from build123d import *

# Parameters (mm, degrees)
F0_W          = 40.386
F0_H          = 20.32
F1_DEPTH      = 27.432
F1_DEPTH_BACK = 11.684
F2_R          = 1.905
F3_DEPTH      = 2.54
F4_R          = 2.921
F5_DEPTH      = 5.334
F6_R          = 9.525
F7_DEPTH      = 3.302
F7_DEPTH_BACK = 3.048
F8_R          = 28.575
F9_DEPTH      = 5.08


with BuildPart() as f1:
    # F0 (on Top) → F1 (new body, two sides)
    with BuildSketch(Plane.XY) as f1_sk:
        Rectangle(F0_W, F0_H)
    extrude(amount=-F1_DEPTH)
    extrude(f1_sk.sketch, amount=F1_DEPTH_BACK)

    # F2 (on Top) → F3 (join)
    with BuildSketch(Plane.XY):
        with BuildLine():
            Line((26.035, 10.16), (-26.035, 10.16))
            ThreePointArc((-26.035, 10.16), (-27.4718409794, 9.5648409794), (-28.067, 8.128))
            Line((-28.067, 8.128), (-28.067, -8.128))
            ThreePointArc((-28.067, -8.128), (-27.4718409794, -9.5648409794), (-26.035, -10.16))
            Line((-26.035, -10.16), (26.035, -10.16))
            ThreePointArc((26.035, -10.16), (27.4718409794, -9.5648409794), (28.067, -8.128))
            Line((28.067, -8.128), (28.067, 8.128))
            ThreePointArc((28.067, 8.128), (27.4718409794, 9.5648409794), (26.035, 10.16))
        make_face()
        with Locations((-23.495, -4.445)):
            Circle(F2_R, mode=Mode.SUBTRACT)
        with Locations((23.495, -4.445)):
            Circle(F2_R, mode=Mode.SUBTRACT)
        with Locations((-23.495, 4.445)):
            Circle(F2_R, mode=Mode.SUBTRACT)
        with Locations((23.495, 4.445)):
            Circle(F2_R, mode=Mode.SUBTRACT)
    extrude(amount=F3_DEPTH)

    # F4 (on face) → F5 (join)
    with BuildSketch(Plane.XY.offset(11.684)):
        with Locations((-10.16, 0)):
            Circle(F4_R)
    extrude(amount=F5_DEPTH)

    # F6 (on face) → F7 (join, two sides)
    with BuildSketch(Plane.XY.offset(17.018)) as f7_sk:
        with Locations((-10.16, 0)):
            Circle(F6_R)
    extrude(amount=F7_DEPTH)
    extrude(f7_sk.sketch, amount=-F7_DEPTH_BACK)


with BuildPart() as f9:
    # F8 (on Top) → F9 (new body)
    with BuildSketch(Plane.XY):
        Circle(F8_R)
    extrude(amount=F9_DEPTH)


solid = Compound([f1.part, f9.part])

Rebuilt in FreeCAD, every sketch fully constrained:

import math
import FreeCAD as App
import Part
import Sketcher
from FreeCAD import Vector
Q = App.Units.Quantity


def add_polygon(sketch, points):
    """Adds a closed chain of lines whose ends are joined by coincident constraints."""
    first, n = sketch.GeometryCount, len(points)
    for a, b in zip(points, points[1:] + points[:1]):
        sketch.addGeometry(Part.LineSegment(App.Vector(*a, 0), App.Vector(*b, 0)), False)
    for i in range(n):
        sketch.addConstraint(Sketcher.Constraint("Coincident", first + i, 2, first + (i + 1) % n, 1))

doc = App.newDocument("Part")
params = doc.addObject("Spreadsheet::Sheet", "Params")
for row, (alias, value) in enumerate([
    ("sketch1_height", "0.8 in"),
    ("sketch1_width", "1.59 in"),
    ("pad1_length", "1.08 in"),
    ("pad1_length2", "0.46 in"),
    ("sketch2_diameter", "0.15 in"),
    ("sketch2_radius", "0.08 in"),
    ("sketch2_width", "2.05 in"),
    ("sketch2_height", "0.64 in"),
    ("pad2_length", "0.1 in"),
    ("sketch3_diameter", "0.23 in"),
    ("pad3_length", "0.21 in"),
    ("sketch4_diameter", "0.75 in"),
    ("pad4_length", "0.13 in"),
    ("pad4_length2", "0.12 in"),
    ("sketch5_diameter", "2.25 in"),
    ("pad5_length", "0.2 in"),
], start=1):
    params.set(f"A{row}", alias)
    params.set(f"B{row}", "=" + value)
    params.setAlias(f"B{row}", alias)

body = doc.addObject("PartDesign::Body", "Body")

# Sketch on XY plane
sketch1 = doc.addObject("Sketcher::SketchObject", "Sketch")
body.addObject(sketch1)
sketch1.AttachmentSupport = (doc.XY_Plane, [""])
sketch1.MapMode = "FlatFace"
add_polygon(sketch1, [(-20.193, 10.16), (-20.193, -10.16), (20.193, -10.16), (20.193, 10.16)])  # lines 0-3
sketch1.addConstraint([
    Sketcher.Constraint("Vertical", 0),
    Sketcher.Constraint("Horizontal", 1),
    Sketcher.Constraint("Vertical", 2),
    Sketcher.Constraint("Horizontal", 3),
    Sketcher.Constraint("Symmetric", 0, 2, 2, 2, -1, 1),
    Sketcher.Constraint("DistanceY", 0, 2, 0, 1, Q("0.8 in")),
    Sketcher.Constraint("DistanceX", 1, 1, 1, 2, Q("1.59 in")),
])
sketch1.setExpression("Constraints[9]", "Params.sketch1_height")
sketch1.setExpression("Constraints[10]", "Params.sketch1_width")
pad1 = doc.addObject("PartDesign::Pad", "Pad")
body.addObject(pad1)
pad1.Profile = sketch1
pad1.Type = "TwoLengths"
pad1.setExpression("Length", "Params.pad1_length")
pad1.setExpression("Length2", "Params.pad1_length2")
pad1.Reversed = True

# Sketch on XY plane
sketch2 = doc.addObject("Sketcher::SketchObject", "Sketch001")
body.addObject(sketch2)
sketch2.AttachmentSupport = (doc.XY_Plane, [""])
sketch2.MapMode = "FlatFace"
sketch2.addGeometry([
    Part.LineSegment(Vector(26.035, 10.16, 0), Vector(-26.035, 10.16, 0)),  # 0
    Part.ArcOfCircle(Part.Circle(Vector(-26.035, 8.128, 0), Vector(0, 0, 1), 2.032), math.radians(90), math.radians(180)),  # 1
    Part.LineSegment(Vector(-28.067, 8.128, 0), Vector(-28.067, -8.128, 0)),  # 2
    Part.ArcOfCircle(Part.Circle(Vector(-26.035, -8.128, 0), Vector(0, 0, 1), 2.032), math.radians(180), math.radians(270)),  # 3
    Part.LineSegment(Vector(-26.035, -10.16, 0), Vector(26.035, -10.16, 0)),  # 4
    Part.ArcOfCircle(Part.Circle(Vector(26.035, -8.128, 0), Vector(0, 0, 1), 2.032), math.radians(-90), math.radians(0)),  # 5
    Part.LineSegment(Vector(28.067, -8.128, 0), Vector(28.067, 8.128, 0)),  # 6
    Part.ArcOfCircle(Part.Circle(Vector(26.035, 8.128, 0), Vector(0, 0, 1), 2.032), math.radians(0), math.radians(90)),  # 7
    Part.Circle(Vector(-23.495, -4.445, 0), Vector(0, 0, 1), 1.905),  # 8
    Part.Circle(Vector(23.495, -4.445, 0), Vector(0, 0, 1), 1.905),  # 9
    Part.Circle(Vector(-23.495, 4.445, 0), Vector(0, 0, 1), 1.905),  # 10
    Part.Circle(Vector(23.495, 4.445, 0), Vector(0, 0, 1), 1.905),  # 11
], False)
sketch2.addConstraint([
    Sketcher.Constraint("Tangent", 0, 2, 1, 1),
    Sketcher.Constraint("Tangent", 1, 2, 2, 1),
    Sketcher.Constraint("Tangent", 2, 2, 3, 1),
    Sketcher.Constraint("Tangent", 3, 2, 4, 1),
    Sketcher.Constraint("Tangent", 4, 2, 5, 1),
    Sketcher.Constraint("Tangent", 5, 2, 6, 1),
    Sketcher.Constraint("Tangent", 6, 2, 7, 1),
    Sketcher.Constraint("Tangent", 7, 2, 0, 1),
    Sketcher.Constraint("Horizontal", 0),
    Sketcher.Constraint("Vertical", 2),
    Sketcher.Constraint("Horizontal", 4),
    Sketcher.Constraint("Vertical", 6),
    Sketcher.Constraint("Equal", 1, 3),
    Sketcher.Constraint("Equal", 3, 5),
    Sketcher.Constraint("Equal", 5, 7),
    Sketcher.Constraint("Equal", 8, 9),
    Sketcher.Constraint("Equal", 9, 10),
    Sketcher.Constraint("Equal", 10, 11),
    Sketcher.Constraint("Symmetric", 1, 3, 5, 3, -1, 1),
    Sketcher.Constraint("Symmetric", 9, 3, 10, 3, -1, 1),
    Sketcher.Constraint("Symmetric", 8, 3, 11, 3, -1, 1),
    Sketcher.Constraint("Symmetric", 8, 3, 9, 3, -2),
    Sketcher.Constraint("Diameter", 8, Q("0.15 in")),
    Sketcher.Constraint("Radius", 1, Q("0.08 in")),
    Sketcher.Constraint("DistanceX", 0, 2, 0, 1, Q("2.05 in")),
    Sketcher.Constraint("DistanceY", 2, 2, 2, 1, Q("0.64 in")),
    Sketcher.Constraint("DistanceX", 3, 3, 8, 3, Q("0.1 in")),
    Sketcher.Constraint("DistanceY", 8, 3, 10, 3, Q("0.35 in")),
])
sketch2.setExpression("Constraints[22]", "Params.sketch2_diameter")
sketch2.setExpression("Constraints[23]", "Params.sketch2_radius")
sketch2.setExpression("Constraints[24]", "Params.sketch2_width")
sketch2.setExpression("Constraints[25]", "Params.sketch2_height")
pad2 = doc.addObject("PartDesign::Pad", "Pad001")
body.addObject(pad2)
pad2.Profile = sketch2
pad2.setExpression("Length", "Params.pad2_length")

# Sketch on XY plane
sketch3 = doc.addObject("Sketcher::SketchObject", "Sketch002")
body.addObject(sketch3)
sketch3.AttachmentSupport = (doc.XY_Plane, [""])
sketch3.MapMode = "FlatFace"
sketch3.AttachmentOffset = App.Placement(Vector(0, 0, 0.46 * 25.4), App.Rotation())
sketch3.addGeometry(Part.Circle(Vector(-10.16, 0, 0), Vector(0, 0, 1), 2.921), False)
sketch3.addConstraint([
    Sketcher.Constraint("PointOnObject", 0, 3, -1),
    Sketcher.Constraint("Diameter", 0, Q("0.23 in")),
    Sketcher.Constraint("DistanceX", 0, 3, -1, 1, Q("0.4 in")),
])
sketch3.setExpression("Constraints[1]", "Params.sketch3_diameter")
pad3 = doc.addObject("PartDesign::Pad", "Pad002")
body.addObject(pad3)
pad3.Profile = sketch3
pad3.setExpression("Length", "Params.pad3_length")

# Sketch on XY plane
sketch4 = doc.addObject("Sketcher::SketchObject", "Sketch003")
body.addObject(sketch4)
sketch4.AttachmentSupport = (doc.XY_Plane, [""])
sketch4.MapMode = "FlatFace"
sketch4.AttachmentOffset = App.Placement(Vector(0, 0, 0.67 * 25.4), App.Rotation())
sketch4.addGeometry(Part.Circle(Vector(-10.16, 0, 0), Vector(0, 0, 1), 9.525), False)
sketch4.addConstraint([
    Sketcher.Constraint("PointOnObject", 0, 3, -1),
    Sketcher.Constraint("Diameter", 0, Q("0.75 in")),
    Sketcher.Constraint("DistanceX", 0, 3, -1, 1, Q("0.4 in")),
])
sketch4.setExpression("Constraints[1]", "Params.sketch4_diameter")
pad4 = doc.addObject("PartDesign::Pad", "Pad003")
body.addObject(pad4)
pad4.Profile = sketch4
pad4.Type = "TwoLengths"
pad4.setExpression("Length", "Params.pad4_length")
pad4.setExpression("Length2", "Params.pad4_length2")
body2 = doc.addObject("PartDesign::Body", "Body001")

# Sketch on XY plane
sketch5 = doc.addObject("Sketcher::SketchObject", "Sketch004")
body2.addObject(sketch5)
sketch5.AttachmentSupport = (doc.getObject("XY_Plane001"), [""])
sketch5.MapMode = "FlatFace"
sketch5.addGeometry(Part.Circle(Vector(0, 0, 0), Vector(0, 0, 1), 28.575), False)
sketch5.addConstraint([
    Sketcher.Constraint("Coincident", 0, 3, -1, 1),
    Sketcher.Constraint("Diameter", 0, Q("2.25 in")),
])
sketch5.setExpression("Constraints[1]", "Params.sketch5_diameter")
pad5 = doc.addObject("PartDesign::Pad", "Pad004")
body2.addObject(pad5)
pad5.Profile = sketch5
pad5.setExpression("Length", "Params.pad5_length")

doc.recompute()
